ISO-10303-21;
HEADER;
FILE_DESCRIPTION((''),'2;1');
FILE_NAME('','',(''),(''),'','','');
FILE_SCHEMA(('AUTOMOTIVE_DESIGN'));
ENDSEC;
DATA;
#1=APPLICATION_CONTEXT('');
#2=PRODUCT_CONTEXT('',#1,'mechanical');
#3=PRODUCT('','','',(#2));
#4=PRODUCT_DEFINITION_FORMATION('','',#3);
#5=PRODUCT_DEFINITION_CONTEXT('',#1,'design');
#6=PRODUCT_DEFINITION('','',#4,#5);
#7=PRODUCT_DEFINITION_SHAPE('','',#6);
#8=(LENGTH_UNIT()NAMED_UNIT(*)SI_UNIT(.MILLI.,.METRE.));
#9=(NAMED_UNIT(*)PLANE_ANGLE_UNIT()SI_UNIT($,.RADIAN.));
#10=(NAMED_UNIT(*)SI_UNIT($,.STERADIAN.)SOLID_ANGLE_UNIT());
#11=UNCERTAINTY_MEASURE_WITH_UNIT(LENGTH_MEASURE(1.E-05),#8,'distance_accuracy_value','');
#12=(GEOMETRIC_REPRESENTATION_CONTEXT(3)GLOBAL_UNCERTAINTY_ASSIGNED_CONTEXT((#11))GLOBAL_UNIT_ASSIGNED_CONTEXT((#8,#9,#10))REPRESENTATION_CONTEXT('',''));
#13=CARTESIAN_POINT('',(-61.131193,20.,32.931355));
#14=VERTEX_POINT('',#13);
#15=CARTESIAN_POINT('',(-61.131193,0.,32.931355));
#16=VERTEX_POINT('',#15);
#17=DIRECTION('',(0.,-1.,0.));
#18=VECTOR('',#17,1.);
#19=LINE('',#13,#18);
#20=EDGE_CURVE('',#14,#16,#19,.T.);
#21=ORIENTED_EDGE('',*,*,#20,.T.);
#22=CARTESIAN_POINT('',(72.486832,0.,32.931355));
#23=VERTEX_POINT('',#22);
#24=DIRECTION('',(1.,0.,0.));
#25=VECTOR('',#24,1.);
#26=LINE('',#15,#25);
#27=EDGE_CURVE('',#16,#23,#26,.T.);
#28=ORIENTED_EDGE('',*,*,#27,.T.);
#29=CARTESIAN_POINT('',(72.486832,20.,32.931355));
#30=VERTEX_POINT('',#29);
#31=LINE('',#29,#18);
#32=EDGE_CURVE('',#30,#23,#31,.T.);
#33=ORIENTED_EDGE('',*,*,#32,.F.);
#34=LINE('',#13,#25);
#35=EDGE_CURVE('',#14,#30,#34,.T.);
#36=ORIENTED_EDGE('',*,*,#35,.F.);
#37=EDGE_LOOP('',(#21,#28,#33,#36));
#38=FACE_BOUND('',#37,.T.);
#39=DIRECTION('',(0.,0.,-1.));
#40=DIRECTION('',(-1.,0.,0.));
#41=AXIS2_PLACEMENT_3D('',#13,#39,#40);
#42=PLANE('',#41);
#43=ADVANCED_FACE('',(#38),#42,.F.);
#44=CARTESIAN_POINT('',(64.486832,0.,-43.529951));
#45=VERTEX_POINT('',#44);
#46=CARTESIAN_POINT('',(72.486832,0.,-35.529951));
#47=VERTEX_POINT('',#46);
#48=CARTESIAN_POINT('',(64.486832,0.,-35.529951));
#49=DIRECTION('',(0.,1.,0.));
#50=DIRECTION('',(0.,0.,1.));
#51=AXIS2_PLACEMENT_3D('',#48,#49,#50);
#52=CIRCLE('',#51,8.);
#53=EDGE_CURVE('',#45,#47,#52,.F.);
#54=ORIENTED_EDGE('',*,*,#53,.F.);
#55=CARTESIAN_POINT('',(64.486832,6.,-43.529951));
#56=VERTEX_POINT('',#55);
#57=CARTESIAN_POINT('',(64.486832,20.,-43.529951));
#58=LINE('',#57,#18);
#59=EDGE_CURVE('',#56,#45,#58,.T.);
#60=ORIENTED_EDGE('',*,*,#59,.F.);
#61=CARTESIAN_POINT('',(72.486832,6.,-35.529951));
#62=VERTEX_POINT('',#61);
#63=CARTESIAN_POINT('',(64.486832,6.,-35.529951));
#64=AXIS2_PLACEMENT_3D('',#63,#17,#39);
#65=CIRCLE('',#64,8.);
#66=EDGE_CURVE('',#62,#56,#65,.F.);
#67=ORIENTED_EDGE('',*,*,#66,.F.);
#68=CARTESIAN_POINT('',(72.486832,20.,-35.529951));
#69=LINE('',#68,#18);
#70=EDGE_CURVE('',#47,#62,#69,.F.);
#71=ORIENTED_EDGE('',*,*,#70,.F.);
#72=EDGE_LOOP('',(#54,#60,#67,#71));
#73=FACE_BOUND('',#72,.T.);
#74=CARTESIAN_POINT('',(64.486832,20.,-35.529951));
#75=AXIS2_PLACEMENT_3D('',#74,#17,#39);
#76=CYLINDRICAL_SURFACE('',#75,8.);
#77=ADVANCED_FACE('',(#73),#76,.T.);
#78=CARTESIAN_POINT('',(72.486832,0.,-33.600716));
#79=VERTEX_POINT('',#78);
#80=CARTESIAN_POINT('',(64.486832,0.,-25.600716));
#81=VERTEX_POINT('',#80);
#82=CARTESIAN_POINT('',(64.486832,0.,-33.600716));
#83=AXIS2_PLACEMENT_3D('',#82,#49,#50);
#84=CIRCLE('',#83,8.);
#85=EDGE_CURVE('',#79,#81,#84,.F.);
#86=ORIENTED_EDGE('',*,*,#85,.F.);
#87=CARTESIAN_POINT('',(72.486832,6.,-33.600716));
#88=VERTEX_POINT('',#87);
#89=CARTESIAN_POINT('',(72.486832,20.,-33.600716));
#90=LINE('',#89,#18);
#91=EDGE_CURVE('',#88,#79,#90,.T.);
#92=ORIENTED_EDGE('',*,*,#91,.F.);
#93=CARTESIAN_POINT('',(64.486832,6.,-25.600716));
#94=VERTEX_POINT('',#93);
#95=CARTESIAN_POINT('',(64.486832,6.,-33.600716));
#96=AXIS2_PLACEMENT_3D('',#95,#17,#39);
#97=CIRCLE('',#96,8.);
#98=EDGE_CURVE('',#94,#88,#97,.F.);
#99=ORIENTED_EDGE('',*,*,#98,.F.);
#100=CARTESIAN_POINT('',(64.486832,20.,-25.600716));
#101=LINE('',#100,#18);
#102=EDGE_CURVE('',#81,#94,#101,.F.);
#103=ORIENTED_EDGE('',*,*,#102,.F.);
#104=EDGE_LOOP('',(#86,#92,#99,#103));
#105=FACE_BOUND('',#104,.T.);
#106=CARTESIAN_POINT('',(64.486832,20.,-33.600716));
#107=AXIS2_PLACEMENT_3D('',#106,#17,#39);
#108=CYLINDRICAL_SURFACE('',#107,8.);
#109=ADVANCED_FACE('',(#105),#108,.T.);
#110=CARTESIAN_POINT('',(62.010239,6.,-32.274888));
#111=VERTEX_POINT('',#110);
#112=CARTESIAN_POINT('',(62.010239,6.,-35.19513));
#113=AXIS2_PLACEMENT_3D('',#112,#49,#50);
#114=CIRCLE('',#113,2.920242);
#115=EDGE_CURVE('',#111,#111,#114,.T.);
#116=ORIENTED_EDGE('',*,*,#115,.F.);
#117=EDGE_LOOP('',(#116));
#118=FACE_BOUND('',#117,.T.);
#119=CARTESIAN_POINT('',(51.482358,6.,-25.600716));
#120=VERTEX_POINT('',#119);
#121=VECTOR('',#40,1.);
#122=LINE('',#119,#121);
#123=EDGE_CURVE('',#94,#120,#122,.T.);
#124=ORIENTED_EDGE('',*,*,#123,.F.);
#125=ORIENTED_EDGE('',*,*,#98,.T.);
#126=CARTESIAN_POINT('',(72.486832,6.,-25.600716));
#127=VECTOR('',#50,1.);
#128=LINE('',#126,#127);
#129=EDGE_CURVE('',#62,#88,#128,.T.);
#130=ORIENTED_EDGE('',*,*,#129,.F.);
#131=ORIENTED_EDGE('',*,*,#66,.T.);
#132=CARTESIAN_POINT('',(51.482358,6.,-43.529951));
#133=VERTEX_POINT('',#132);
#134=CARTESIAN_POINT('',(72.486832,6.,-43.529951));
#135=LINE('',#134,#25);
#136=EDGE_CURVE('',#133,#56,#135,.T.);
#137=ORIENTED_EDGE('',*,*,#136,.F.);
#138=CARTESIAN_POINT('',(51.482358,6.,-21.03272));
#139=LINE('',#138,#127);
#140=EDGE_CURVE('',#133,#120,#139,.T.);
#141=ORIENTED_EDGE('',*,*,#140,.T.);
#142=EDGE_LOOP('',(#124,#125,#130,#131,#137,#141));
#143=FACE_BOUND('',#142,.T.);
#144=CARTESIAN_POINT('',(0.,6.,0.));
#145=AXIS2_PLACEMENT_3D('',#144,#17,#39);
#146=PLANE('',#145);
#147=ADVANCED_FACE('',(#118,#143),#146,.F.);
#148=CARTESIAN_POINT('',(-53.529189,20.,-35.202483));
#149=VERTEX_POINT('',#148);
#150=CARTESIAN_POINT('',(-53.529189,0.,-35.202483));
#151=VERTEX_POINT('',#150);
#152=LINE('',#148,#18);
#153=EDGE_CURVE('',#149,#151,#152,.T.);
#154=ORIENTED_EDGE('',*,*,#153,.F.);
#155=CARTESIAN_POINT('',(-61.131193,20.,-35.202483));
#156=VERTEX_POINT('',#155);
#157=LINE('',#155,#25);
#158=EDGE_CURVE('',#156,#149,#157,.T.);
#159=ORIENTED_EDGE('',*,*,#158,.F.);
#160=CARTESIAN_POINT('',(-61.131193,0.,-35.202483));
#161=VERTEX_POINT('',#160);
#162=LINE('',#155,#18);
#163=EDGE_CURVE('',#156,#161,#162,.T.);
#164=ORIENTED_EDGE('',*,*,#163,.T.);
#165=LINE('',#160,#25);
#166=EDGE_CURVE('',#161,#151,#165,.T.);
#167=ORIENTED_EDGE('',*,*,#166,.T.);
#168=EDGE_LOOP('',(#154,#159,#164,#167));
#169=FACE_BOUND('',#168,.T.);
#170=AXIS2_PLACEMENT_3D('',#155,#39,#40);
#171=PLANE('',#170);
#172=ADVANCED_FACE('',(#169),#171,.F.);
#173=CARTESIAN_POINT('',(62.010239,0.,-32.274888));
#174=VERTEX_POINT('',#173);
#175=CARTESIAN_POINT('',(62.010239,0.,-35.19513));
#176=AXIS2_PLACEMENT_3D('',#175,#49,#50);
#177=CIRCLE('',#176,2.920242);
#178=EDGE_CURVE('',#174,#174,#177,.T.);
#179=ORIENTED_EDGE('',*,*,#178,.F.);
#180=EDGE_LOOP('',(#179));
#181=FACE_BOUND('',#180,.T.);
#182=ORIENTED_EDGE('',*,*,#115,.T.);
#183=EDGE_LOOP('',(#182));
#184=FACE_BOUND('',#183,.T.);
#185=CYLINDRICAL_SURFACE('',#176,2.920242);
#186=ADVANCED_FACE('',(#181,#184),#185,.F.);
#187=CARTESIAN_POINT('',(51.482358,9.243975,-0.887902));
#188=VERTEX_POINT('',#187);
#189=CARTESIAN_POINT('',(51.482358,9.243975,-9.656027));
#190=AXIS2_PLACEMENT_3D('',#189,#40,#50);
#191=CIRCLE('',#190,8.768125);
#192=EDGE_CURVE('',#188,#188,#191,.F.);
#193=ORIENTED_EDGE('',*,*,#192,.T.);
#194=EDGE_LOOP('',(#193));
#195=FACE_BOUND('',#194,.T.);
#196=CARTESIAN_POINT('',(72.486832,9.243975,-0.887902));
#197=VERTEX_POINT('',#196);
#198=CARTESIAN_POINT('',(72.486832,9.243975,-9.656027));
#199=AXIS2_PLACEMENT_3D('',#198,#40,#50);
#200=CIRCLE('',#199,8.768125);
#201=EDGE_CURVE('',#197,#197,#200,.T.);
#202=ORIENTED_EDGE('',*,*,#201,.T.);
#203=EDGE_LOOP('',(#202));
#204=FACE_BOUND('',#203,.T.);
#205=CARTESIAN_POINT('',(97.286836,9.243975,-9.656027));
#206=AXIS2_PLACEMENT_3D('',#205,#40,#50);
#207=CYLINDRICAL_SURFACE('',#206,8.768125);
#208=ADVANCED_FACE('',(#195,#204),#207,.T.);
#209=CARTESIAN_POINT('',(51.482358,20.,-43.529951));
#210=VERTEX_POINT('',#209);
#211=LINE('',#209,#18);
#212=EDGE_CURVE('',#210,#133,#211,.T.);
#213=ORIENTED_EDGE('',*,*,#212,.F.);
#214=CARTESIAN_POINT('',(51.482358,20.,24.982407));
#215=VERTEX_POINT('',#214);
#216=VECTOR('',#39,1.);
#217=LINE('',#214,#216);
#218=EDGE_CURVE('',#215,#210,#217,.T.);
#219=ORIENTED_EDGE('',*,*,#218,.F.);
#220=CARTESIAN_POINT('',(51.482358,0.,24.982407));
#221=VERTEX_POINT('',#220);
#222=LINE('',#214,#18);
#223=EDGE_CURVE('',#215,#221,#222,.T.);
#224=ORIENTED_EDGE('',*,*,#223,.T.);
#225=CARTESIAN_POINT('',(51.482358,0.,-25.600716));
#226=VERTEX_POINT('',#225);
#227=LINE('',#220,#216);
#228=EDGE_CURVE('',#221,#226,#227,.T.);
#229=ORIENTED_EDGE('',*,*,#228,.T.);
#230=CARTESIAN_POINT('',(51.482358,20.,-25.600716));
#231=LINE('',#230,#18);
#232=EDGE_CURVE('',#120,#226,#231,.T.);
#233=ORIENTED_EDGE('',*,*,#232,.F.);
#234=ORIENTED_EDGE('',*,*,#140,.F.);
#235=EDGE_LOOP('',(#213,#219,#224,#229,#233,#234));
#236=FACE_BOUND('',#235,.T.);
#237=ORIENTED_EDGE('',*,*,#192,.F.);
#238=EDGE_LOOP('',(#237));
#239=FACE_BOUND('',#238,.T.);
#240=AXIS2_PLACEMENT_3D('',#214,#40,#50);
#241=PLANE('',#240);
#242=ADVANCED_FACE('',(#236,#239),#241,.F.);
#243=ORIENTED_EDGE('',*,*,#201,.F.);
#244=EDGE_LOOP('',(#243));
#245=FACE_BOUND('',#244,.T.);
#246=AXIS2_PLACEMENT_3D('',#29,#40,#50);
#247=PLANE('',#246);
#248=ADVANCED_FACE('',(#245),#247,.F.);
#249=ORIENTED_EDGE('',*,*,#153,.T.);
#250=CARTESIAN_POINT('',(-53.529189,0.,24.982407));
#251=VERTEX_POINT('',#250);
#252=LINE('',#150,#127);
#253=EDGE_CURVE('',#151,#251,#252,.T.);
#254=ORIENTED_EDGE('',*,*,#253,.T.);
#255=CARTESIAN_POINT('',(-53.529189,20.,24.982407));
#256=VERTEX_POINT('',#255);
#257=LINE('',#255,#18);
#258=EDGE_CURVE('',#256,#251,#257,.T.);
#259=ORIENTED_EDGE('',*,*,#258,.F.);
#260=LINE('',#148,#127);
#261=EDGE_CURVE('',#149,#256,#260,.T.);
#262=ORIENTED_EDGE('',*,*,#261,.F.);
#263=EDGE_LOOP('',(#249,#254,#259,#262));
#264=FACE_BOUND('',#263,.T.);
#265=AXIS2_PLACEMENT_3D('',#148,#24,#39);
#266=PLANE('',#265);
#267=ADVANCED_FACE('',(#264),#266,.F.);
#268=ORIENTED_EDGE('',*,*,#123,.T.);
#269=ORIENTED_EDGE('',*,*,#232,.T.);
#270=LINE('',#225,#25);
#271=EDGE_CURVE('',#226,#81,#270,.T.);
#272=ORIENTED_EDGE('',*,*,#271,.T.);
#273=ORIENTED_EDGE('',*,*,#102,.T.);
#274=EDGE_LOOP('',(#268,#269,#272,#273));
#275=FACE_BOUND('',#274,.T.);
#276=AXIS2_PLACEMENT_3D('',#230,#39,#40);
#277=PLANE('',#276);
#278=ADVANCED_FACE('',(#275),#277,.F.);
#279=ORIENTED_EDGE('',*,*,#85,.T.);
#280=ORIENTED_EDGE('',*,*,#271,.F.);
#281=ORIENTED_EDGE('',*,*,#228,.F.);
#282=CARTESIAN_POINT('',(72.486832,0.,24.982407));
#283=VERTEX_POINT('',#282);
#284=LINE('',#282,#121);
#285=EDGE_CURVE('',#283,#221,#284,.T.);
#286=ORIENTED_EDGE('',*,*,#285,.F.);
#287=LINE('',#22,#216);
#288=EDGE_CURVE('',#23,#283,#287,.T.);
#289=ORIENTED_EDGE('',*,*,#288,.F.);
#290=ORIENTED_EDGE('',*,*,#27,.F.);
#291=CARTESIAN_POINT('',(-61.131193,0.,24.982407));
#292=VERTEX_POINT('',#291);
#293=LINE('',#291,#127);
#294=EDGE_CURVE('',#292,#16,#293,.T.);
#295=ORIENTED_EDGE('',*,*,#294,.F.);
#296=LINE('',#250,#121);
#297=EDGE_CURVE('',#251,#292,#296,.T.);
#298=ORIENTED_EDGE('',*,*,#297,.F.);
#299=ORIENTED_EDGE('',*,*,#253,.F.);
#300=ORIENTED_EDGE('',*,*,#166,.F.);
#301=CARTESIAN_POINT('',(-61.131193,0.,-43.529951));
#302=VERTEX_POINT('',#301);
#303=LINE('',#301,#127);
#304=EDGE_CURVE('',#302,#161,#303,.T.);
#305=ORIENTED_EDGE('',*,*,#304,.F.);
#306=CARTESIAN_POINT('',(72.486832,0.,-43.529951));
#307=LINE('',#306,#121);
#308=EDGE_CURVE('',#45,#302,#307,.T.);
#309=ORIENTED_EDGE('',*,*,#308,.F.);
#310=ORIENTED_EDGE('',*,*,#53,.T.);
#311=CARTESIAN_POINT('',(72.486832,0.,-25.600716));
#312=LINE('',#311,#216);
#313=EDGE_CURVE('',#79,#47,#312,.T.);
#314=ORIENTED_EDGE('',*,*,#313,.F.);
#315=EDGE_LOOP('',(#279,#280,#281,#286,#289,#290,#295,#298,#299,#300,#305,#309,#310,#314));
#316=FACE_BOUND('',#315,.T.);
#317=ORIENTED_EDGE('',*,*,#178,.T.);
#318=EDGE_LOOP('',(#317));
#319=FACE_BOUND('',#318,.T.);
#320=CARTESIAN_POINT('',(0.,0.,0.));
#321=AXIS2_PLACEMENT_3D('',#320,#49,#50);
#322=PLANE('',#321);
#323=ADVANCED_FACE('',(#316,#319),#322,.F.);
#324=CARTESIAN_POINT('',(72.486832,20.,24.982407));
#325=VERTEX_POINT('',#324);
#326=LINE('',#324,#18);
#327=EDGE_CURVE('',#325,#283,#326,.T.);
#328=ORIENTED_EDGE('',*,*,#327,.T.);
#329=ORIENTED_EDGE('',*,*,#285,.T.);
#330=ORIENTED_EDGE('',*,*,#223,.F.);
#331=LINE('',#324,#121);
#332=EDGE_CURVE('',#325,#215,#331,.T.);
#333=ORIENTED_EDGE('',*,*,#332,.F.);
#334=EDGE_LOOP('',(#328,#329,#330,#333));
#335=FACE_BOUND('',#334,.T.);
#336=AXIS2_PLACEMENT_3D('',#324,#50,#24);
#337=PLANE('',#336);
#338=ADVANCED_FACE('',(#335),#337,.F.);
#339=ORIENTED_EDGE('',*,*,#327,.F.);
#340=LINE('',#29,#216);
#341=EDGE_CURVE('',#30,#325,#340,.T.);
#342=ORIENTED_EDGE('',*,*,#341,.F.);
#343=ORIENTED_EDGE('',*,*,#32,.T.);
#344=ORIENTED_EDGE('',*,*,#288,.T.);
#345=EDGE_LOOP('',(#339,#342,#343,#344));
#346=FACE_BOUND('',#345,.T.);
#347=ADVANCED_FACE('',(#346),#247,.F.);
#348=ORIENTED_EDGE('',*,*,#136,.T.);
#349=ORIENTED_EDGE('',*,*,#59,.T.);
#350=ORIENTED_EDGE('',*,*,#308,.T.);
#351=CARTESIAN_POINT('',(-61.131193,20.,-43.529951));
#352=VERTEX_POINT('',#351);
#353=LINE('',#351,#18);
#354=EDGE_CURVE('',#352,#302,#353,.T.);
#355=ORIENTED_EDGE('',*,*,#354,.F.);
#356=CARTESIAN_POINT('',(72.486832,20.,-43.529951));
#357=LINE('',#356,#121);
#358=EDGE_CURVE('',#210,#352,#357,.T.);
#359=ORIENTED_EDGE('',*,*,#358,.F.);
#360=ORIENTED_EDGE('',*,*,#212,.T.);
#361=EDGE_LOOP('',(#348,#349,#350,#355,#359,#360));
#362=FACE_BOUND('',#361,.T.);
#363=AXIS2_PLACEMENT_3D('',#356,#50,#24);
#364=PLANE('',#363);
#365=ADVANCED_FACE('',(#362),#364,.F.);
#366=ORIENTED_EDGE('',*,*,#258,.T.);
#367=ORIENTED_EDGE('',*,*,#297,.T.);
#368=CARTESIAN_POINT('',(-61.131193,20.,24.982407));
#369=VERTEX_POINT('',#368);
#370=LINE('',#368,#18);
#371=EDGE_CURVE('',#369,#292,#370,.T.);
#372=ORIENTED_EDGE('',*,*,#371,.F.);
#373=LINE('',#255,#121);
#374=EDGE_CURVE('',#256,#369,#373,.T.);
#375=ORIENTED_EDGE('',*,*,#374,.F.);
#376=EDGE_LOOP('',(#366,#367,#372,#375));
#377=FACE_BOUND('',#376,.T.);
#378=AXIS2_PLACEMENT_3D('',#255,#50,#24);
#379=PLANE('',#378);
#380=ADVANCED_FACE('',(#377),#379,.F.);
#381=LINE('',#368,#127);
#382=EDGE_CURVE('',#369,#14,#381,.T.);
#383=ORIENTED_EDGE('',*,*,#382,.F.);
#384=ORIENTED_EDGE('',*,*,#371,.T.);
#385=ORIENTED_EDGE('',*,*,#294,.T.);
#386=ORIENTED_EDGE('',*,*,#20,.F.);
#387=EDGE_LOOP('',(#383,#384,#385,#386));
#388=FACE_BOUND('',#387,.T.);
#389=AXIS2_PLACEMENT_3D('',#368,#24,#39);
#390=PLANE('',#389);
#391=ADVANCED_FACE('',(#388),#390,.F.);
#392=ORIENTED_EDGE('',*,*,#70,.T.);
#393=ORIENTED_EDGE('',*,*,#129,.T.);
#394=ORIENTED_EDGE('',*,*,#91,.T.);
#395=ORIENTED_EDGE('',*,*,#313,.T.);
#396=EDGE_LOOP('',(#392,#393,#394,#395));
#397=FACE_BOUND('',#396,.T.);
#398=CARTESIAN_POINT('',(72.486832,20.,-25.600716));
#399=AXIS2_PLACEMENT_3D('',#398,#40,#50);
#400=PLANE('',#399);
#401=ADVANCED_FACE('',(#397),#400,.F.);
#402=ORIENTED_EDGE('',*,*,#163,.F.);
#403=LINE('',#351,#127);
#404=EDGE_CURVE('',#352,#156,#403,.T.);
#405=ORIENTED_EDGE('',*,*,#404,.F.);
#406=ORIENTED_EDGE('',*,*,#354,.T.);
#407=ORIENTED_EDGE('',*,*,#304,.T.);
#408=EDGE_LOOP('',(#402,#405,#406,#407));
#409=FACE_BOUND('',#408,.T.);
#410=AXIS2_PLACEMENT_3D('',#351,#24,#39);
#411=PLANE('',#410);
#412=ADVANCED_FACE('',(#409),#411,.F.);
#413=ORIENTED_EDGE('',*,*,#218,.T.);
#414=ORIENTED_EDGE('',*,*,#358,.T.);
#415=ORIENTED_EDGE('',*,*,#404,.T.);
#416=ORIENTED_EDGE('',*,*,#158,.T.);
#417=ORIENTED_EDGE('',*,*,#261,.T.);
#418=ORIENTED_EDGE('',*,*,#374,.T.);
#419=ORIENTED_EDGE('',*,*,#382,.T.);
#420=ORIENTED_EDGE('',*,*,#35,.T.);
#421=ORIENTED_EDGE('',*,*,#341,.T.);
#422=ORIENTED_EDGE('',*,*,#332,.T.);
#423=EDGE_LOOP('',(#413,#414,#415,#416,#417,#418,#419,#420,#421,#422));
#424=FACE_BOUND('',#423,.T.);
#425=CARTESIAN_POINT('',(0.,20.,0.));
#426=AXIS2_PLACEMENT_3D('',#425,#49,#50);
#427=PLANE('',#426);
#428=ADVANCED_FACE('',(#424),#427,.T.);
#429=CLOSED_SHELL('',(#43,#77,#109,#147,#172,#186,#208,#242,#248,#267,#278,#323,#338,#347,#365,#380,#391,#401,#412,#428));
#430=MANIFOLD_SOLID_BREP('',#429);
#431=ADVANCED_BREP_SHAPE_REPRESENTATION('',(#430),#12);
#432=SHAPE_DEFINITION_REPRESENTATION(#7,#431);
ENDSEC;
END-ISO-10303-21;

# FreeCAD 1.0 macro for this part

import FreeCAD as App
import Part
import Sketcher

V = App.Vector


def edges_at(feature, points):
    """Names of the edges that pass closest to the given points."""
    edges = feature.Shape.Edges
    near = lambda p: min(range(len(edges)), key=lambda i: edges[i].distToShape(Part.Vertex(*p))[0])
    return sorted({f"Edge{near(p) + 1}" for p in points})

doc = App.newDocument("Part")
body = doc.addObject("PartDesign::Body", "Body")

# Sketch on XZ plane
sketch1 = body.newObject("Sketcher::SketchObject", "Sketch")
sketch1.AttachmentSupport = (doc.getObject("XZ_Plane"), [""])
sketch1.MapMode = "FlatFace"
sketch1.addGeometry([
    Part.LineSegment(V(-61.131193, 32.931355, 0), V(72.486832, 32.931355, 0)),  # 0
    Part.LineSegment(V(72.486832, 32.931355, 0), V(72.486832, 24.982407, 0)),  # 1
    Part.LineSegment(V(72.486832, 24.982407, 0), V(51.482358, 24.982407, 0)),  # 2
    Part.LineSegment(V(51.482358, 24.982407, 0), V(51.482358, -25.600716, 0)),  # 3
    Part.LineSegment(V(51.482358, -25.600716, 0), V(72.486832, -25.600716, 0)),  # 4
    Part.LineSegment(V(72.486832, -25.600716, 0), V(72.486832, -43.529951, 0)),  # 5
    Part.LineSegment(V(72.486832, -43.529951, 0), V(-61.131193, -43.529951, 0)),  # 6
    Part.LineSegment(V(-61.131193, -43.529951, 0), V(-61.131193, -35.202483, 0)),  # 7
    Part.LineSegment(V(-61.131193, -35.202483, 0), V(-53.529189, -35.202483, 0)),  # 8
    Part.LineSegment(V(-53.529189, -35.202483, 0), V(-53.529189, 24.982407, 0)),  # 9
    Part.LineSegment(V(-53.529189, 24.982407, 0), V(-61.131193, 24.982407, 0)),  # 10
    Part.LineSegment(V(-61.131193, 24.982407, 0), V(-61.131193, 32.931355, 0)),  # 11
], False)
sketch1.addConstraint([
    Sketcher.Constraint("Coincident", 0, 2, 1, 1),
    Sketcher.Constraint("Coincident", 1, 2, 2, 1),
    Sketcher.Constraint("Coincident", 2, 2, 3, 1),
    Sketcher.Constraint("Coincident", 3, 2, 4, 1),
    Sketcher.Constraint("Coincident", 4, 2, 5, 1),
    Sketcher.Constraint("Coincident", 5, 2, 6, 1),
    Sketcher.Constraint("Coincident", 6, 2, 7, 1),
    Sketcher.Constraint("Coincident", 7, 2, 8, 1),
    Sketcher.Constraint("Coincident", 8, 2, 9, 1),
    Sketcher.Constraint("Coincident", 9, 2, 10, 1),
    Sketcher.Constraint("Coincident", 10, 2, 11, 1),
    Sketcher.Constraint("Coincident", 11, 2, 0, 1),
    Sketcher.Constraint("Horizontal", 0),
    Sketcher.Constraint("Vertical", 1),
    Sketcher.Constraint("Horizontal", 2),
    Sketcher.Constraint("Vertical", 3),
    Sketcher.Constraint("Horizontal", 4),
    Sketcher.Constraint("Vertical", 5),
    Sketcher.Constraint("Horizontal", 6),
    Sketcher.Constraint("Vertical", 7),
    Sketcher.Constraint("Horizontal", 8),
    Sketcher.Constraint("Vertical", 9),
    Sketcher.Constraint("Horizontal", 10),
    Sketcher.Constraint("Vertical", 11),
    Sketcher.Constraint("Horizontal", 2, 2, 9, 2),
    Sketcher.Constraint("Vertical", 1, 2, 4, 2),
    Sketcher.Constraint("Vertical", 7, 2, 10, 2),
    Sketcher.Constraint("DistanceY", 7, 1, 7, 2, 8.327469),
    Sketcher.Constraint("DistanceY", 9, 1, 9, 2, 60.184889),
    Sketcher.Constraint("DistanceX", 0, 1, 0, 2, 133.618025),
    Sketcher.Constraint("DistanceX", 2, 2, 2, 1, 21.004475),
    Sketcher.Constraint("DistanceX", 8, 1, 8, 2, 7.602004),
    Sketcher.Constraint("DistanceY", 1, 2, 1, 1, 7.948948),
    Sketcher.Constraint("DistanceY", 3, 2, 3, 1, 50.583123),
    Sketcher.Constraint("DistanceY", 5, 2, -1, 1, 43.529951),
    Sketcher.Constraint("DistanceX", 8, 2, -1, 1, 53.529189),
])
pad1 = body.newObject("PartDesign::Pad", "Pad")
pad1.Profile = sketch1
pad1.Length = 20
pad1.Reversed = True
doc.recompute()

fillet = body.newObject("PartDesign::Fillet", "Fillet")
fillet.Base = (pad1, edges_at(pad1, [(72.487, 10, -43.53), (72.487, 10, -25.601)]))
fillet.Radius = 8

# Sketch on XZ plane
sketch2 = body.newObject("Sketcher::SketchObject", "Sketch001")
sketch2.AttachmentSupport = (doc.getObject("XZ_Plane"), [""])
sketch2.MapMode = "FlatFace"
sketch2.AttachmentOffset = App.Placement(V(0, 0, -20), App.Rotation())
sketch2.addGeometry([
    Part.LineSegment(V(51.482358, -47.732143, 0), V(51.482358, -21.03272, 0)),
    Part.LineSegment(V(51.482358, -21.03272, 0), V(76.898692, -21.03272, 0)),
    Part.LineSegment(V(76.898692, -21.03272, 0), V(76.898692, -47.732143, 0)),
    Part.LineSegment(V(76.898692, -47.732143, 0), V(51.482358, -47.732143, 0)),
], False)
sketch2.addConstraint([
    Sketcher.Constraint("Coincident", 0, 2, 1, 1),
    Sketcher.Constraint("Coincident", 1, 2, 2, 1),
    Sketcher.Constraint("Coincident", 2, 2, 3, 1),
    Sketcher.Constraint("Coincident", 3, 2, 0, 1),
    Sketcher.Constraint("Vertical", 0),
    Sketcher.Constraint("Horizontal", 1),
    Sketcher.Constraint("Vertical", 2),
    Sketcher.Constraint("Horizontal", 3),
    Sketcher.Constraint("DistanceX", 1, 1, 1, 2, 25.416334),
    Sketcher.Constraint("DistanceY", 0, 1, 0, 2, 26.699423),
    Sketcher.Constraint("DistanceY", 0, 2, -1, 1, 21.03272),
    Sketcher.Constraint("DistanceX", -1, 1, 0, 2, 51.482358),
])
pocket1 = body.newObject("PartDesign::Pocket", "Pocket")
pocket1.Profile = sketch2
pocket1.Length = 14
pocket1.Reversed = True

# Sketch on XZ plane
sketch3 = body.newObject("Sketcher::SketchObject", "Sketch002")
sketch3.AttachmentSupport = (doc.getObject("XZ_Plane"), [""])
sketch3.MapMode = "FlatFace"
sketch3.AttachmentOffset = App.Placement(V(0, 0, -6), App.Rotation())
sketch3.addGeometry(Part.Circle(V(62.010239, -35.19513, 0), V(0, 0, 1), 2.920242), False)
sketch3.addConstraint([
    Sketcher.Constraint("Diameter", 0, 5.840485),
    Sketcher.Constraint("DistanceX", -1, 1, 0, 3, 62.010239),
    Sketcher.Constraint("DistanceY", 0, 3, -1, 1, 35.19513),
])
pocket2 = body.newObject("PartDesign::Pocket", "Pocket001")
pocket2.Profile = sketch3
pocket2.Type = "ThroughAll"
pocket2.Reversed = True

# Sketch on YZ plane
sketch4 = body.newObject("Sketcher::SketchObject", "Sketch003")
sketch4.AttachmentSupport = (doc.getObject("YZ_Plane"), [""])
sketch4.MapMode = "FlatFace"
sketch4.AttachmentOffset = App.Placement(V(0, 0, 51.482358), App.Rotation())
sketch4.addGeometry(Part.Circle(V(9.243975, -9.656027, 0), V(0, 0, 1), 8.768125), False)
sketch4.addConstraint([
    Sketcher.Constraint("Diameter", 0, 17.536251),
    Sketcher.Constraint("DistanceX", -1, 1, 0, 3, 9.243975),
    Sketcher.Constraint("DistanceY", 0, 3, -1, 1, 9.656027),
])
pad2 = body.newObject("PartDesign::Pad", "Pad001")
pad2.Profile = sketch4
pad2.Length = 21.004475

doc.recompute()
